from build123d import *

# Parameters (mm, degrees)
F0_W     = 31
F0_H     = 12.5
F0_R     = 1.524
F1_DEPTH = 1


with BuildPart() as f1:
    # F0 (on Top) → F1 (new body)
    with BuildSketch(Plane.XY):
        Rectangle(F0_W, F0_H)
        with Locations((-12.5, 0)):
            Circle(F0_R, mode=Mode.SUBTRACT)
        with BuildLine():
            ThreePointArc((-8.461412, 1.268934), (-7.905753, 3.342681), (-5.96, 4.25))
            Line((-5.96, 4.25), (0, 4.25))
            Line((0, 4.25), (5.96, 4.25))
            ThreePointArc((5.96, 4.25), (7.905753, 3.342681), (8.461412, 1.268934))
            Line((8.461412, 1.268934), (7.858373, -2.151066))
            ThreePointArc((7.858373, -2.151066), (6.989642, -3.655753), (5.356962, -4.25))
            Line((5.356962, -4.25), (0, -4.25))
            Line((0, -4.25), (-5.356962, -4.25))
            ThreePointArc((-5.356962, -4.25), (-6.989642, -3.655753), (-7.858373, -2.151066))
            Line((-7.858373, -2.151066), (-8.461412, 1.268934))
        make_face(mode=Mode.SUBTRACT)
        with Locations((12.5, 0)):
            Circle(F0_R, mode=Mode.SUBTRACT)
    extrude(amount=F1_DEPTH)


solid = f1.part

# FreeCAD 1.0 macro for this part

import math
import FreeCAD as App
import Part
import Sketcher
Q = App.Units.Quantity

doc = App.newDocument("Part")
body = doc.addObject("PartDesign::Body", "Body")

# Sketch on XY plane
sketch1 = body.newObject("Sketcher::SketchObject", "Sketch")
sketch1.AttachmentSupport = (doc.getObject("XY_Plane"), [""])
sketch1.MapMode = "FlatFace"
sketch1.addGeometry([
    Part.LineSegment(App.Vector(-15.5, 6.2, 0), App.Vector(-15.5, -6.2, 0)),  # 0
    Part.LineSegment(App.Vector(-15.5, -6.2, 0), App.Vector(15.5, -6.2, 0)),  # 1
    Part.LineSegment(App.Vector(15.5, -6.2, 0), App.Vector(15.5, 6.2, 0)),  # 2
    Part.LineSegment(App.Vector(15.5, 6.2, 0), App.Vector(-15.5, 6.2, 0)),  # 3
    Part.Circle(App.Vector(-12.5, 0, 0), App.Vector(0, 0, 1), 1.5),  # 4
    Part.Circle(App.Vector(12.5, 0, 0), App.Vector(0, 0, 1), 1.5),  # 5
    Part.LineSegment(App.Vector(-7.9, -2.2, 0), App.Vector(-8.5, 1.3, 0)),  # 6
    Part.ArcOfCircle(Part.Circle(App.Vector(-6, 1.7, 0), App.Vector(0, 0, 1), 2.5), math.radians(90), math.radians(190)),  # 7
    Part.LineSegment(App.Vector(-6, 4.2, 0), App.Vector(6, 4.2, 0)),  # 8
    Part.ArcOfCircle(Part.Circle(App.Vector(6, 1.7, 0), App.Vector(0, 0, 1), 2.5), math.radians(-10), math.radians(90)),  # 9
    Part.LineSegment(App.Vector(8.5, 1.3, 0), App.Vector(7.9, -2.2, 0)),  # 10
    Part.ArcOfCircle(Part.Circle(App.Vector(5.4, -1.7, 0), App.Vector(0, 0, 1), 2.5), math.radians(-90), math.radians(-10)),  # 11
    Part.LineSegment(App.Vector(5.4, -4.2, 0), App.Vector(-5.4, -4.2, 0)),  # 12
    Part.ArcOfCircle(Part.Circle(App.Vector(-5.4, -1.7, 0), App.Vector(0, 0, 1), 2.5), math.radians(-170), math.radians(-90)),  # 13
], False)
sketch1.addConstraint([
    Sketcher.Constraint("Coincident", 0, 2, 1, 1),
    Sketcher.Constraint("Coincident", 1, 2, 2, 1),
    Sketcher.Constraint("Coincident", 2, 2, 3, 1),
    Sketcher.Constraint("Coincident", 3, 2, 0, 1),
    Sketcher.Constraint("Tangent", 6, 2, 7, 2),
    Sketcher.Constraint("Tangent", 7, 1, 8, 1),
    Sketcher.Constraint("Tangent", 8, 2, 9, 2),
    Sketcher.Constraint("Tangent", 9, 1, 10, 1),
    Sketcher.Constraint("Tangent", 10, 2, 11, 2),
    Sketcher.Constraint("Tangent", 11, 1, 12, 1),
    Sketcher.Constraint("Tangent", 12, 2, 13, 2),
    Sketcher.Constraint("Tangent", 13, 1, 6, 1),
    Sketcher.Constraint("Vertical", 0),
    Sketcher.Constraint("Horizontal", 1),
    Sketcher.Constraint("Vertical", 2),
    Sketcher.Constraint("Horizontal", 3),
    Sketcher.Constraint("Horizontal", 8),
    Sketcher.Constraint("Horizontal", 12),
    Sketcher.Constraint("Equal", 4, 5),
    Sketcher.Constraint("Equal", 7, 9),
    Sketcher.Constraint("Equal", 9, 11),
    Sketcher.Constraint("Equal", 11, 13),
    Sketcher.Constraint("Symmetric", 4, 3, 5, 3, -1, 1),
    Sketcher.Constraint("Symmetric", 0, 2, 2, 2, -1, 1),
    Sketcher.Constraint("Symmetric", 6, 2, 9, 1, -2),
    Sketcher.Constraint("PointOnObject", 4, 3, -1),
    Sketcher.Constraint("DistanceX", 1, 1, 1, 2, Q("31 mm")),
    Sketcher.Constraint("Angle", 6, Q("100.000012 deg")),
    Sketcher.Constraint("Radius", 7, Q("2.54 mm")),
    Sketcher.Constraint("Diameter", 4, Q("3.048 mm")),
    Sketcher.Constraint("DistanceY", 0, 2, 0, 1, Q("12.5 mm")),
    Sketcher.Constraint("DistanceX", 4, 3, 5, 3, Q("25 mm")),
    Sketcher.Constraint("DistanceY", 7, 1, 3, 2, Q("2 mm")),
    Sketcher.Constraint("DistanceX", 8, 1, 8, 2, Q("11.92 mm")),
    Sketcher.Constraint("DistanceY", 12, 2, 7, 1, Q("8.5 mm")),
])
pad1 = body.newObject("PartDesign::Pad", "Pad")
pad1.Profile = sketch1
pad1.Length = 1

doc.recompute()
